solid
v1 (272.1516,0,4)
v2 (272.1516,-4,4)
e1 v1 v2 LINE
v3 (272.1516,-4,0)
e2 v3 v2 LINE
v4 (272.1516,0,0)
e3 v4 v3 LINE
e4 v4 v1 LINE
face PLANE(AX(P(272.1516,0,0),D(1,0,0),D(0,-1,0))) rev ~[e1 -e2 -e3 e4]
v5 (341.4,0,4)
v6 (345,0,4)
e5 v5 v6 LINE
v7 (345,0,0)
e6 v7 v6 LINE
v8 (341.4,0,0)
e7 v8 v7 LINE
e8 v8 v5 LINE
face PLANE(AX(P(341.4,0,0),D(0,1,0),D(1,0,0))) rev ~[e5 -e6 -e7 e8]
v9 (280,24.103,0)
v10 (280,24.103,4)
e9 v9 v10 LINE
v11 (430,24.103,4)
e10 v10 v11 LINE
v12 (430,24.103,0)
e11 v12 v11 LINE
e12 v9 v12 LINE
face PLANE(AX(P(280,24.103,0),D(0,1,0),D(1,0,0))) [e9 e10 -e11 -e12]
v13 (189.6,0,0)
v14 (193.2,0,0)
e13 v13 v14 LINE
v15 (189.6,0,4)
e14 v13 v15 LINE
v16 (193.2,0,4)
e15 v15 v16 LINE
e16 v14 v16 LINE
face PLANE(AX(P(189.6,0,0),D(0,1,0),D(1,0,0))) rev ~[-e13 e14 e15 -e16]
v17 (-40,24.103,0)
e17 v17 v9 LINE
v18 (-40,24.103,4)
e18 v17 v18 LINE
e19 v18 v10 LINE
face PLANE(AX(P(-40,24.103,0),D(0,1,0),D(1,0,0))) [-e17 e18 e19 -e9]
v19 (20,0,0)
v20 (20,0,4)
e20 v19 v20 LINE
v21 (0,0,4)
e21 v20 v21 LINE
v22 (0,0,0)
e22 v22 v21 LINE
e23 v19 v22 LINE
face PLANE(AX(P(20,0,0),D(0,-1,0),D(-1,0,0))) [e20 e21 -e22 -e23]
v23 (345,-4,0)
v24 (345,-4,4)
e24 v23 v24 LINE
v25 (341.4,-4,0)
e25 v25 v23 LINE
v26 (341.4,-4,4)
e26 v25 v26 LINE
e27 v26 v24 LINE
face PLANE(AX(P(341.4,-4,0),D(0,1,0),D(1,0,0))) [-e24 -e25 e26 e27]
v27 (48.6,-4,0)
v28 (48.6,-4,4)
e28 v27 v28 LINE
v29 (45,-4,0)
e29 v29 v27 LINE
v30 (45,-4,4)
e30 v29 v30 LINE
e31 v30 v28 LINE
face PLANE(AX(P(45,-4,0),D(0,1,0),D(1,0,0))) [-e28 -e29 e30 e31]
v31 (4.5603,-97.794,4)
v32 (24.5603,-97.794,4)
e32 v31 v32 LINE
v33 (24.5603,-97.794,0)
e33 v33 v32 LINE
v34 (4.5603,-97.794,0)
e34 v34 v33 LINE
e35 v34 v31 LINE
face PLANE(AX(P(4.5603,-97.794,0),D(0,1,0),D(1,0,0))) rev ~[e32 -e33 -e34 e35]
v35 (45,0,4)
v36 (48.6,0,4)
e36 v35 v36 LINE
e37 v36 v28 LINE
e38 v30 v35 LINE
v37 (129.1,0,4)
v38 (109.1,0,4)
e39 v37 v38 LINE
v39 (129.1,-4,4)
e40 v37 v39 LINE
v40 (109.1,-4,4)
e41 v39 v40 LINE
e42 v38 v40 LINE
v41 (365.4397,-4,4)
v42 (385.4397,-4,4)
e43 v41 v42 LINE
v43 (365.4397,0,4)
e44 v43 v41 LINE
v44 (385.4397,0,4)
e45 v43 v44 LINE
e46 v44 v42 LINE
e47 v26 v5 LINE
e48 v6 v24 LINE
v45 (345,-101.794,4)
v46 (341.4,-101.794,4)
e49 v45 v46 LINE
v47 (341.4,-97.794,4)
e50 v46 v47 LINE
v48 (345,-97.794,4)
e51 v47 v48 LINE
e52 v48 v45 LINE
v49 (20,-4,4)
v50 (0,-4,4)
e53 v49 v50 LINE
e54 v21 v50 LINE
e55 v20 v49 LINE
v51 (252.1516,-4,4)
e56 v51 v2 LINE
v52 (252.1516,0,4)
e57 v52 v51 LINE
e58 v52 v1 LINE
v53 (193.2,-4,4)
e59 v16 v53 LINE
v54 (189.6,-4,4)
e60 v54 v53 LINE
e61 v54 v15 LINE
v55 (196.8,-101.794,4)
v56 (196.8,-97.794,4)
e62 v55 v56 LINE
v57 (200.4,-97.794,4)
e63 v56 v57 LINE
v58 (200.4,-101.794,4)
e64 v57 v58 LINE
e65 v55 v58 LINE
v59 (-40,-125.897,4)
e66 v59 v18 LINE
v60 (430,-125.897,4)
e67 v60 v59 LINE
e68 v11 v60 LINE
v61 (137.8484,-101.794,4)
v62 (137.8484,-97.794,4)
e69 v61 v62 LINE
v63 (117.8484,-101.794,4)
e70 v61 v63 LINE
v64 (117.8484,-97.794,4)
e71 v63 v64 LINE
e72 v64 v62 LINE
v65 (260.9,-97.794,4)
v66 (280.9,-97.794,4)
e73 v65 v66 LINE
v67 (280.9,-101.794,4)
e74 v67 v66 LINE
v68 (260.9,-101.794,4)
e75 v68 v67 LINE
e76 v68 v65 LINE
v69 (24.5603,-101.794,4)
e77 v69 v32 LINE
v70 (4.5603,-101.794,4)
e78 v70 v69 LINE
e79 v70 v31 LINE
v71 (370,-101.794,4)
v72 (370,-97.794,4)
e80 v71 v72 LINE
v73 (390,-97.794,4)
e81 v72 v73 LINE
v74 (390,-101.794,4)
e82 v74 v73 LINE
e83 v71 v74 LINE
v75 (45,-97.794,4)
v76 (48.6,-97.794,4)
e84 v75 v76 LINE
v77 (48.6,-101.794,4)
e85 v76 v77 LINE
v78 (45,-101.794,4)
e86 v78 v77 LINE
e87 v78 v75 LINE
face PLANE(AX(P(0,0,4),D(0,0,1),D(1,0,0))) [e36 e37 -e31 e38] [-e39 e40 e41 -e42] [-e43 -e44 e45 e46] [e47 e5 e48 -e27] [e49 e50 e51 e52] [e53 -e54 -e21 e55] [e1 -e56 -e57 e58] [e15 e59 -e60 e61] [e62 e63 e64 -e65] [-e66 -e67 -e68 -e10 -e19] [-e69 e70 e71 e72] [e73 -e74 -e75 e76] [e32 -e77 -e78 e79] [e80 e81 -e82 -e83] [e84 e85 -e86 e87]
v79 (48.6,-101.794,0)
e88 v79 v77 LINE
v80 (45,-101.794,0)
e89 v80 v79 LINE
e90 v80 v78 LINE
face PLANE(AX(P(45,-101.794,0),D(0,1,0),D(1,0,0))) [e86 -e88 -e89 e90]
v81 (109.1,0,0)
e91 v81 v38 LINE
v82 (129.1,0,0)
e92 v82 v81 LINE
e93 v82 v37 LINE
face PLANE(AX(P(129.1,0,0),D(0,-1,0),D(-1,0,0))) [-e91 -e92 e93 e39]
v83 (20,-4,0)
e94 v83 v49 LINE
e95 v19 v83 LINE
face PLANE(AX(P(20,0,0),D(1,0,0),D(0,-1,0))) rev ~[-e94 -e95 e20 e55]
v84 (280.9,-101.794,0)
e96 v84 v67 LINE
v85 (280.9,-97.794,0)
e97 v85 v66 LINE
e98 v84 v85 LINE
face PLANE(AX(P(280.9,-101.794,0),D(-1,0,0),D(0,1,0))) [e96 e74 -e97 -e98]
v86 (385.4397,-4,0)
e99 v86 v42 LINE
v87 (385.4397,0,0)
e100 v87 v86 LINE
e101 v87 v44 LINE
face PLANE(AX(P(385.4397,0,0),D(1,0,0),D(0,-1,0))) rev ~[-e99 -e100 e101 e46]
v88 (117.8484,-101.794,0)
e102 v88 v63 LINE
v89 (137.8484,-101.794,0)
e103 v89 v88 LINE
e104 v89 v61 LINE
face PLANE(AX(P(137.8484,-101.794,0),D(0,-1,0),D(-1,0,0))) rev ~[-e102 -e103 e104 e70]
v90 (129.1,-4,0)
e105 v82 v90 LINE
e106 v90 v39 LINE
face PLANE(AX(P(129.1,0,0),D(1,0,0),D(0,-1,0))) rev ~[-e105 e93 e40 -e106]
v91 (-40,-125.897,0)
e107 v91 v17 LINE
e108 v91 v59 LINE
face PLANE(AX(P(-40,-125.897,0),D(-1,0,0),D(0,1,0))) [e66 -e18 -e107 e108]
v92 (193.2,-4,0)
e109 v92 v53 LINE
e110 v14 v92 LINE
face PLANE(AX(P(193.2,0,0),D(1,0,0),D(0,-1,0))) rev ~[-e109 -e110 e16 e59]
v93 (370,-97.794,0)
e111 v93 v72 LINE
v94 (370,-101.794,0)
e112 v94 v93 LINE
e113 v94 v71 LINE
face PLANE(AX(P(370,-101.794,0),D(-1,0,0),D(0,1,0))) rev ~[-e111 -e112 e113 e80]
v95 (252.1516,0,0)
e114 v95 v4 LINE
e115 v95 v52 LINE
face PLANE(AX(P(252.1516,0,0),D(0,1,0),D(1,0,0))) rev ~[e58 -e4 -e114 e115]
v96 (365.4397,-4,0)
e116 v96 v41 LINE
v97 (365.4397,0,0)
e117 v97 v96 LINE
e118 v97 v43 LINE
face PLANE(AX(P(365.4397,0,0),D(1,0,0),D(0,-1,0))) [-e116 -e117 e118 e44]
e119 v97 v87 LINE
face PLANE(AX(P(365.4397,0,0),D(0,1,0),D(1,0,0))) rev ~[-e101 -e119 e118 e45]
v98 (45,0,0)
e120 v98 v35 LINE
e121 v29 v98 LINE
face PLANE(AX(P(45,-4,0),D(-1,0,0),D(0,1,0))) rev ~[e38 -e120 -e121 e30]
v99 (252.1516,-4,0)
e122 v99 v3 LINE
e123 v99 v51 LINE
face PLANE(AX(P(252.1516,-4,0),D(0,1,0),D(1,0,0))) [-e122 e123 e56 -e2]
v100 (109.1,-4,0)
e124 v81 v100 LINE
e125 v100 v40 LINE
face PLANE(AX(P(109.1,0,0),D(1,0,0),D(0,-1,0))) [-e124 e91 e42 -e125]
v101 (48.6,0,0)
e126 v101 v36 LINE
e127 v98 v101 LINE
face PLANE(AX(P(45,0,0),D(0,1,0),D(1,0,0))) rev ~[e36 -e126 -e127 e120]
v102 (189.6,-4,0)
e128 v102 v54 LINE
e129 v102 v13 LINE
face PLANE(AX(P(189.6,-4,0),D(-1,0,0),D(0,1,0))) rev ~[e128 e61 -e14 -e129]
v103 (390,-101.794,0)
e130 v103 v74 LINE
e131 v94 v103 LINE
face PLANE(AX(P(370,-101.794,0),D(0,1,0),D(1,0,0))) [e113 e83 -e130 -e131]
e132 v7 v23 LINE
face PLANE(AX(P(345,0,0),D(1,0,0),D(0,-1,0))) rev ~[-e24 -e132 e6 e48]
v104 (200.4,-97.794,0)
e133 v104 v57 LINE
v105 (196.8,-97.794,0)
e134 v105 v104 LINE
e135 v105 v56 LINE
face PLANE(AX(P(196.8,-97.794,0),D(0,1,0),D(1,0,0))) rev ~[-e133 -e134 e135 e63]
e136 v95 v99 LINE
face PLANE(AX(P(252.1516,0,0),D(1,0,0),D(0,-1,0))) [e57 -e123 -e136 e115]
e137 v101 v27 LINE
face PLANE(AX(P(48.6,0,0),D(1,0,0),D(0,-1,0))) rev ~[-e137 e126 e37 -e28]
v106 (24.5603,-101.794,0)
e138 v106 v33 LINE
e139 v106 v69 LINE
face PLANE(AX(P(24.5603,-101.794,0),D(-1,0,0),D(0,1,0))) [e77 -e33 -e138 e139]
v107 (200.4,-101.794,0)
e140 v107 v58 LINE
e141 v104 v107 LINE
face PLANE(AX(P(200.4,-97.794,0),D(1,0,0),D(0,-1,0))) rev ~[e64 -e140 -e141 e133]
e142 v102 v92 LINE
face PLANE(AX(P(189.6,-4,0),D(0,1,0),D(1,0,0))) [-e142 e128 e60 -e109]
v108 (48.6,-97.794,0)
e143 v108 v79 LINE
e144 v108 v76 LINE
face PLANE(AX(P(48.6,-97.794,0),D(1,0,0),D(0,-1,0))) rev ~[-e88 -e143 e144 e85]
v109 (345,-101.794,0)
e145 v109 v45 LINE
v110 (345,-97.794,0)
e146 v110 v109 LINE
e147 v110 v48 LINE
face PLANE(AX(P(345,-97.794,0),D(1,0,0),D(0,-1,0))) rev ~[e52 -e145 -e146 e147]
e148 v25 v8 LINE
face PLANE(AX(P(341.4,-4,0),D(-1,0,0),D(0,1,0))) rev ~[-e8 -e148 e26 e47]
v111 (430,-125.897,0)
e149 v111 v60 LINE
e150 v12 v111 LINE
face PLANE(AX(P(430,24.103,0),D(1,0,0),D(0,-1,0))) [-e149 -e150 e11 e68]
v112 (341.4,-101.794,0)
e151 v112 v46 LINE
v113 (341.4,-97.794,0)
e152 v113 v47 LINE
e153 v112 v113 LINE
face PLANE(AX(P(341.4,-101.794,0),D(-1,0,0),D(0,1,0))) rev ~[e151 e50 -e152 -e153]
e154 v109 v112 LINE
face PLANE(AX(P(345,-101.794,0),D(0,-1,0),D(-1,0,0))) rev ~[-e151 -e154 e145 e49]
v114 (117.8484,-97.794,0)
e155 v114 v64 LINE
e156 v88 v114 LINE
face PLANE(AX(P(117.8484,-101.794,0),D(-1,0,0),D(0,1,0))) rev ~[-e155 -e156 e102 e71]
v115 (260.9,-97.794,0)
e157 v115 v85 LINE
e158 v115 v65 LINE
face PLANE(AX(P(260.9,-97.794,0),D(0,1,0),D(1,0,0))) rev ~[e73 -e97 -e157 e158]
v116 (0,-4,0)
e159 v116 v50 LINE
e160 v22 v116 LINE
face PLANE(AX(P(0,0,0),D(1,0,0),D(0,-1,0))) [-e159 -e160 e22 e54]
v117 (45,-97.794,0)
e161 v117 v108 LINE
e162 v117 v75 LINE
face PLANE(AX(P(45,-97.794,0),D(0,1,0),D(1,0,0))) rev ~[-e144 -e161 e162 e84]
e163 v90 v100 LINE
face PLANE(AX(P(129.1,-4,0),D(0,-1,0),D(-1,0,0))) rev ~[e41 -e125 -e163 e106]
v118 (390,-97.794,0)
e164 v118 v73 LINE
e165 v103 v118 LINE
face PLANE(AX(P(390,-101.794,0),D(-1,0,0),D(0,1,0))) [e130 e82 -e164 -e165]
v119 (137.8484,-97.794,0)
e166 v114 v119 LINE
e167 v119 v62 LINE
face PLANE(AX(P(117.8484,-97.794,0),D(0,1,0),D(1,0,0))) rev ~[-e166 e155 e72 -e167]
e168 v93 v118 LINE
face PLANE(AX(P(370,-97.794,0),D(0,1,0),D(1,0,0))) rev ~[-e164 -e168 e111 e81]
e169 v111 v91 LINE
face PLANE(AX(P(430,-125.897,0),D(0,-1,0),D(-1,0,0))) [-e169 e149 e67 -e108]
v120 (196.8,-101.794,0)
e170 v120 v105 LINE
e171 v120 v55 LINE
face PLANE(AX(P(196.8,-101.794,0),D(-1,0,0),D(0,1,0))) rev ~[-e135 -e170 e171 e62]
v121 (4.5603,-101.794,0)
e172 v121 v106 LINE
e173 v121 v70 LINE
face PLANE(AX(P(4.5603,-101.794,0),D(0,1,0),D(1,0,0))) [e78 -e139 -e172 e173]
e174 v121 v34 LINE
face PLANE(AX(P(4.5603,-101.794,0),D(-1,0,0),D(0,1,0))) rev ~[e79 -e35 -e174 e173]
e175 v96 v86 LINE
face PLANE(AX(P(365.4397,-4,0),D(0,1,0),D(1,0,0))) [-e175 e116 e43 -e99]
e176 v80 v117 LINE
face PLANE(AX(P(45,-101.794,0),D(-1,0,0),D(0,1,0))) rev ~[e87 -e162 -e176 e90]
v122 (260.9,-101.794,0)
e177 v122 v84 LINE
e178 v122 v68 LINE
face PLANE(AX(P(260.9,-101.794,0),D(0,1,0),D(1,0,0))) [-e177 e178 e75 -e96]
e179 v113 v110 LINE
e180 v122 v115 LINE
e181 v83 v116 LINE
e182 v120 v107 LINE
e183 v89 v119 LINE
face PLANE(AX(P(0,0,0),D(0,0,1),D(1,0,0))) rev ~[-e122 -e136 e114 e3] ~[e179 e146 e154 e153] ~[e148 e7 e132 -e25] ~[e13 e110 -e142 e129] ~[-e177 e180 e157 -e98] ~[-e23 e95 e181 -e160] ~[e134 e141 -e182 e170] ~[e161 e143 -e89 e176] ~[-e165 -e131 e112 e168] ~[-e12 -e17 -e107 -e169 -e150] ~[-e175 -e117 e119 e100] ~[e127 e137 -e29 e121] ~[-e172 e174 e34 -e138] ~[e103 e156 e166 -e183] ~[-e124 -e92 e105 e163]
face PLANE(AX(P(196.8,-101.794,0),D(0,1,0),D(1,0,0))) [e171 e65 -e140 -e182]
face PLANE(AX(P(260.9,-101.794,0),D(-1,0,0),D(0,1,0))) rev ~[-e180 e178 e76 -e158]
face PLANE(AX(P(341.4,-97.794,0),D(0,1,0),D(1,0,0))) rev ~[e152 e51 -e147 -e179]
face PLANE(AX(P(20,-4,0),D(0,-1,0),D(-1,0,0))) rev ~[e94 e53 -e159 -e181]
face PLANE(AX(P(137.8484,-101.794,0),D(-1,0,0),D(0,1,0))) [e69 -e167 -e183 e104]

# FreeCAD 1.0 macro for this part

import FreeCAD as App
import Part
import Sketcher
from FreeCAD import Vector
Q = App.Units.Quantity


def add_polygon(sketch, points):
    """Adds a closed chain of lines whose ends are joined by coincident constraints."""
    first, n = sketch.GeometryCount, len(points)
    for a, b in zip(points, points[1:] + points[:1]):
        sketch.addGeometry(Part.LineSegment(App.Vector(*a, 0), App.Vector(*b, 0)), False)
    for i in range(n):
        sketch.addConstraint(Sketcher.Constraint("Coincident", first + i, 2, first + (i + 1) % n, 1))

doc = App.newDocument("Part")
body = doc.addObject("PartDesign::Body", "Body")

sketch1 = doc.addObject("Sketcher::SketchObject", "Sketch")
body.addObject(sketch1)
sketch1.AttachmentSupport = (doc.XY_Plane, [""])
sketch1.MapMode = "FlatFace"
add_polygon(sketch1, [(430, 24.103), (-40, 24.103), (-40, -125.897), (430, -125.897)])
add_polygon(sketch1, [(4.5603, -101.794), (4.5603, -97.794), (24.5603, -97.794), (24.5603, -101.794)])
add_polygon(sketch1, [(48.6, -101.794), (45, -101.794), (45, -97.794), (48.6, -97.794)])
add_polygon(sketch1, [(137.8484, -101.794), (117.8484, -101.794), (117.8484, -97.794), (137.8484, -97.794)])
add_polygon(sketch1, [(0, 0), (20, 0), (20, -4), (0, -4)])
add_polygon(sketch1, [(48.6, -4), (45, -4), (45, 0), (48.6, 0)])
add_polygon(sketch1, [(109.1, 0), (129.1, 0), (129.1, -4), (109.1, -4)])
add_polygon(sketch1, [(193.2, -4), (189.6, -4), (189.6, 0), (193.2, 0)])
add_polygon(sketch1, [(200.4, -101.794), (196.8, -101.794), (196.8, -97.794), (200.4, -97.794)])
add_polygon(sketch1, [(280.9, -101.794), (260.9, -101.794), (260.9, -97.794), (280.9, -97.794)])
add_polygon(sketch1, [(345, -101.794), (341.4, -101.794), (341.4, -97.794), (345, -97.794)])
add_polygon(sketch1, [(390, -101.794), (370, -101.794), (370, -97.794), (390, -97.794)])
add_polygon(sketch1, [(252.1516, -4), (252.1516, 0), (272.1516, 0), (272.1516, -4)])
add_polygon(sketch1, [(345, -4), (341.4, -4), (341.4, 0), (345, 0)])
add_polygon(sketch1, [(365.4397, -4), (365.4397, 0), (385.4397, 0), (385.4397, -4)])
sketch1.addConstraint(Sketcher.Constraint("Horizontal", 0))
sketch1.addConstraint(Sketcher.Constraint("Vertical", 1))
sketch1.addConstraint(Sketcher.Constraint("Horizontal", 2))
sketch1.addConstraint(Sketcher.Constraint("Vertical", 3))
sketch1.addConstraint(Sketcher.Constraint("Vertical", 4))
sketch1.addConstraint(Sketcher.Constraint("Horizontal", 5))
sketch1.addConstraint(Sketcher.Constraint("Vertical", 6))
sketch1.addConstraint(Sketcher.Constraint("Horizontal", 7))
sketch1.addConstraint(Sketcher.Constraint("Horizontal", 8))
sketch1.addConstraint(Sketcher.Constraint("Vertical", 9))
sketch1.addConstraint(Sketcher.Constraint("Horizontal", 10))
sketch1.addConstraint(Sketcher.Constraint("Vertical", 11))
sketch1.addConstraint(Sketcher.Constraint("Horizontal", 12))
sketch1.addConstraint(Sketcher.Constraint("Vertical", 13))
sketch1.addConstraint(Sketcher.Constraint("Horizontal", 14))
sketch1.addConstraint(Sketcher.Constraint("Vertical", 15))
sketch1.addConstraint(Sketcher.Constraint("Horizontal", 16))
sketch1.addConstraint(Sketcher.Constraint("Vertical", 17))
sketch1.addConstraint(Sketcher.Constraint("Horizontal", 18))
sketch1.addConstraint(Sketcher.Constraint("Vertical", 19))
sketch1.addConstraint(Sketcher.Constraint("Horizontal", 20))
sketch1.addConstraint(Sketcher.Constraint("Vertical", 21))
sketch1.addConstraint(Sketcher.Constraint("Horizontal", 22))
sketch1.addConstraint(Sketcher.Constraint("Vertical", 23))
sketch1.addConstraint(Sketcher.Constraint("Horizontal", 24))
sketch1.addConstraint(Sketcher.Constraint("Vertical", 25))
sketch1.addConstraint(Sketcher.Constraint("Horizontal", 26))
sketch1.addConstraint(Sketcher.Constraint("Vertical", 27))
sketch1.addConstraint(Sketcher.Constraint("Horizontal", 28))
sketch1.addConstraint(Sketcher.Constraint("Vertical", 29))
sketch1.addConstraint(Sketcher.Constraint("Horizontal", 30))
sketch1.addConstraint(Sketcher.Constraint("Vertical", 31))
sketch1.addConstraint(Sketcher.Constraint("Horizontal", 32))
sketch1.addConstraint(Sketcher.Constraint("Vertical", 33))
sketch1.addConstraint(Sketcher.Constraint("Horizontal", 34))
sketch1.addConstraint(Sketcher.Constraint("Vertical", 35))
sketch1.addConstraint(Sketcher.Constraint("Horizontal", 36))
sketch1.addConstraint(Sketcher.Constraint("Vertical", 37))
sketch1.addConstraint(Sketcher.Constraint("Horizontal", 38))
sketch1.addConstraint(Sketcher.Constraint("Vertical", 39))
sketch1.addConstraint(Sketcher.Constraint("Horizontal", 40))
sketch1.addConstraint(Sketcher.Constraint("Vertical", 41))
sketch1.addConstraint(Sketcher.Constraint("Horizontal", 42))
sketch1.addConstraint(Sketcher.Constraint("Vertical", 43))
sketch1.addConstraint(Sketcher.Constraint("Horizontal", 44))
sketch1.addConstraint(Sketcher.Constraint("Vertical", 45))
sketch1.addConstraint(Sketcher.Constraint("Horizontal", 46))
sketch1.addConstraint(Sketcher.Constraint("Vertical", 47))
sketch1.addConstraint(Sketcher.Constraint("Vertical", 48))
sketch1.addConstraint(Sketcher.Constraint("Horizontal", 49))
sketch1.addConstraint(Sketcher.Constraint("Vertical", 50))
sketch1.addConstraint(Sketcher.Constraint("Horizontal", 51))
sketch1.addConstraint(Sketcher.Constraint("Horizontal", 52))
sketch1.addConstraint(Sketcher.Constraint("Vertical", 53))
sketch1.addConstraint(Sketcher.Constraint("Horizontal", 54))
sketch1.addConstraint(Sketcher.Constraint("Vertical", 55))
sketch1.addConstraint(Sketcher.Constraint("Vertical", 56))
sketch1.addConstraint(Sketcher.Constraint("Horizontal", 57))
sketch1.addConstraint(Sketcher.Constraint("Vertical", 58))
sketch1.addConstraint(Sketcher.Constraint("Horizontal", 59))
sketch1.addConstraint(Sketcher.Constraint("Coincident", 19, 2, -1, 1))
sketch1.addConstraint(Sketcher.Constraint("PointOnObject", 21, 2, -1))
sketch1.addConstraint(Sketcher.Constraint("PointOnObject", 24, 2, -1))
sketch1.addConstraint(Sketcher.Constraint("PointOnObject", 29, 2, -1))
sketch1.addConstraint(Sketcher.Constraint("PointOnObject", 48, 2, -1))
sketch1.addConstraint(Sketcher.Constraint("PointOnObject", 53, 2, -1))
sketch1.addConstraint(Sketcher.Constraint("PointOnObject", 56, 2, -1))
sketch1.addConstraint(Sketcher.Constraint("Horizontal", 7, 2, 8, 2))
sketch1.addConstraint(Sketcher.Constraint("Horizontal", 5, 2, 9, 2))
sketch1.addConstraint(Sketcher.Constraint("Horizontal", 11, 2, 12, 2))
sketch1.addConstraint(Sketcher.Constraint("Horizontal", 10, 2, 13, 2))
sketch1.addConstraint(Sketcher.Constraint("Horizontal", 18, 2, 20, 2))
sketch1.addConstraint(Sketcher.Constraint("Horizontal", 23, 2, 25, 2))
sketch1.addConstraint(Sketcher.Constraint("Horizontal", 26, 2, 28, 2))
sketch1.addConstraint(Sketcher.Constraint("Horizontal", 15, 2, 32, 2))
sketch1.addConstraint(Sketcher.Constraint("Horizontal", 14, 2, 33, 2))
sketch1.addConstraint(Sketcher.Constraint("Horizontal", 35, 2, 36, 2))
sketch1.addConstraint(Sketcher.Constraint("Horizontal", 34, 2, 37, 2))
sketch1.addConstraint(Sketcher.Constraint("Horizontal", 39, 2, 40, 2))
sketch1.addConstraint(Sketcher.Constraint("Horizontal", 38, 2, 41, 2))
sketch1.addConstraint(Sketcher.Constraint("Horizontal", 43, 2, 44, 2))
sketch1.addConstraint(Sketcher.Constraint("Horizontal", 42, 2, 45, 2))
sketch1.addConstraint(Sketcher.Constraint("Horizontal", 31, 2, 50, 2))
sketch1.addConstraint(Sketcher.Constraint("Horizontal", 51, 2, 52, 2))
sketch1.addConstraint(Sketcher.Constraint("Horizontal", 55, 2, 58, 2))
sketch1.addConstraint(Sketcher.Constraint("Vertical", 9, 2, 20, 2))
sketch1.addConstraint(Sketcher.Constraint("Vertical", 11, 2, 22, 2))
sketch1.addConstraint(Sketcher.Constraint("Vertical", 41, 2, 52, 2))
sketch1.addConstraint(Sketcher.Constraint("Vertical", 43, 2, 54, 2))
sketch1.addConstraint(Sketcher.Constraint("Equal", 7, 12))
sketch1.addConstraint(Sketcher.Constraint("Equal", 14, 16))
sketch1.addConstraint(Sketcher.Constraint("Equal", 18, 24))
sketch1.addConstraint(Sketcher.Constraint("Equal", 22, 28))
sketch1.addConstraint(Sketcher.Constraint("Equal", 30, 32))
sketch1.addConstraint(Sketcher.Constraint("Equal", 26, 36))
sketch1.addConstraint(Sketcher.Constraint("Equal", 34, 40))
sketch1.addConstraint(Sketcher.Constraint("Equal", 38, 44))
sketch1.addConstraint(Sketcher.Constraint("Equal", 46, 49))
sketch1.addConstraint(Sketcher.Constraint("Equal", 51, 57))
sketch1.addConstraint(Sketcher.Constraint("Equal", 15, 17))
sketch1.addConstraint(Sketcher.Constraint("DistanceX", 0, 2, 0, 1, Q("470 mm")))
sketch1.addConstraint(Sketcher.Constraint("DistanceY", 1, 2, 1, 1, Q("150 mm")))
sketch1.addConstraint(Sketcher.Constraint("DistanceX", 5, 1, 5, 2, Q("20 mm")))
sketch1.addConstraint(Sketcher.Constraint("DistanceY", 4, 1, 4, 2, Q("4 mm")))
sketch1.addConstraint(Sketcher.Constraint("DistanceX", 8, 2, 8, 1, Q("3.6 mm")))
sketch1.addConstraint(Sketcher.Constraint("DistanceX", 0, 2, -1, 1, Q("40 mm")))
sketch1.addConstraint(Sketcher.Constraint("DistanceX", -1, 1, 8, 2, Q("45 mm")))
sketch1.addConstraint(Sketcher.Constraint("DistanceX", -1, 1, 42, 2, Q("345 mm")))
sketch1.addConstraint(Sketcher.Constraint("DistanceX", -1, 1, 44, 2, Q("370 mm")))
sketch1.addConstraint(Sketcher.Constraint("DistanceX", -1, 1, 24, 2, Q("129.1 mm")))
sketch1.addConstraint(Sketcher.Constraint("DistanceX", -1, 1, 28, 2, Q("189.6 mm")))
sketch1.addConstraint(Sketcher.Constraint("DistanceX", -1, 1, 32, 2, Q("196.8 mm")))
sketch1.addConstraint(Sketcher.Constraint("DistanceX", -1, 1, 36, 2, Q("260.9 mm")))
sketch1.addConstraint(Sketcher.Constraint("DistanceY", -1, 1, 0, 2, Q("24.103 mm")))
sketch1.addConstraint(Sketcher.Constraint("DistanceY", 4, 2, -1, 1, Q("97.794 mm")))
sketch1.addConstraint(Sketcher.Constraint("DistanceX", 6, 2, 12, 2, Q("93.288 mm")))
sketch1.addConstraint(Sketcher.Constraint("DistanceX", -1, 1, 4, 2, Q("4.5603 mm")))
sketch1.addConstraint(Sketcher.Constraint("DistanceX", -1, 1, 48, 2, Q("252.1516 mm")))
sketch1.addConstraint(Sketcher.Constraint("DistanceX", -1, 1, 56, 2, Q("365.4397 mm")))
pad1 = doc.addObject("PartDesign::Pad", "Pad")
body.addObject(pad1)
pad1.Profile = sketch1
pad1.Length = 4

doc.recompute()
